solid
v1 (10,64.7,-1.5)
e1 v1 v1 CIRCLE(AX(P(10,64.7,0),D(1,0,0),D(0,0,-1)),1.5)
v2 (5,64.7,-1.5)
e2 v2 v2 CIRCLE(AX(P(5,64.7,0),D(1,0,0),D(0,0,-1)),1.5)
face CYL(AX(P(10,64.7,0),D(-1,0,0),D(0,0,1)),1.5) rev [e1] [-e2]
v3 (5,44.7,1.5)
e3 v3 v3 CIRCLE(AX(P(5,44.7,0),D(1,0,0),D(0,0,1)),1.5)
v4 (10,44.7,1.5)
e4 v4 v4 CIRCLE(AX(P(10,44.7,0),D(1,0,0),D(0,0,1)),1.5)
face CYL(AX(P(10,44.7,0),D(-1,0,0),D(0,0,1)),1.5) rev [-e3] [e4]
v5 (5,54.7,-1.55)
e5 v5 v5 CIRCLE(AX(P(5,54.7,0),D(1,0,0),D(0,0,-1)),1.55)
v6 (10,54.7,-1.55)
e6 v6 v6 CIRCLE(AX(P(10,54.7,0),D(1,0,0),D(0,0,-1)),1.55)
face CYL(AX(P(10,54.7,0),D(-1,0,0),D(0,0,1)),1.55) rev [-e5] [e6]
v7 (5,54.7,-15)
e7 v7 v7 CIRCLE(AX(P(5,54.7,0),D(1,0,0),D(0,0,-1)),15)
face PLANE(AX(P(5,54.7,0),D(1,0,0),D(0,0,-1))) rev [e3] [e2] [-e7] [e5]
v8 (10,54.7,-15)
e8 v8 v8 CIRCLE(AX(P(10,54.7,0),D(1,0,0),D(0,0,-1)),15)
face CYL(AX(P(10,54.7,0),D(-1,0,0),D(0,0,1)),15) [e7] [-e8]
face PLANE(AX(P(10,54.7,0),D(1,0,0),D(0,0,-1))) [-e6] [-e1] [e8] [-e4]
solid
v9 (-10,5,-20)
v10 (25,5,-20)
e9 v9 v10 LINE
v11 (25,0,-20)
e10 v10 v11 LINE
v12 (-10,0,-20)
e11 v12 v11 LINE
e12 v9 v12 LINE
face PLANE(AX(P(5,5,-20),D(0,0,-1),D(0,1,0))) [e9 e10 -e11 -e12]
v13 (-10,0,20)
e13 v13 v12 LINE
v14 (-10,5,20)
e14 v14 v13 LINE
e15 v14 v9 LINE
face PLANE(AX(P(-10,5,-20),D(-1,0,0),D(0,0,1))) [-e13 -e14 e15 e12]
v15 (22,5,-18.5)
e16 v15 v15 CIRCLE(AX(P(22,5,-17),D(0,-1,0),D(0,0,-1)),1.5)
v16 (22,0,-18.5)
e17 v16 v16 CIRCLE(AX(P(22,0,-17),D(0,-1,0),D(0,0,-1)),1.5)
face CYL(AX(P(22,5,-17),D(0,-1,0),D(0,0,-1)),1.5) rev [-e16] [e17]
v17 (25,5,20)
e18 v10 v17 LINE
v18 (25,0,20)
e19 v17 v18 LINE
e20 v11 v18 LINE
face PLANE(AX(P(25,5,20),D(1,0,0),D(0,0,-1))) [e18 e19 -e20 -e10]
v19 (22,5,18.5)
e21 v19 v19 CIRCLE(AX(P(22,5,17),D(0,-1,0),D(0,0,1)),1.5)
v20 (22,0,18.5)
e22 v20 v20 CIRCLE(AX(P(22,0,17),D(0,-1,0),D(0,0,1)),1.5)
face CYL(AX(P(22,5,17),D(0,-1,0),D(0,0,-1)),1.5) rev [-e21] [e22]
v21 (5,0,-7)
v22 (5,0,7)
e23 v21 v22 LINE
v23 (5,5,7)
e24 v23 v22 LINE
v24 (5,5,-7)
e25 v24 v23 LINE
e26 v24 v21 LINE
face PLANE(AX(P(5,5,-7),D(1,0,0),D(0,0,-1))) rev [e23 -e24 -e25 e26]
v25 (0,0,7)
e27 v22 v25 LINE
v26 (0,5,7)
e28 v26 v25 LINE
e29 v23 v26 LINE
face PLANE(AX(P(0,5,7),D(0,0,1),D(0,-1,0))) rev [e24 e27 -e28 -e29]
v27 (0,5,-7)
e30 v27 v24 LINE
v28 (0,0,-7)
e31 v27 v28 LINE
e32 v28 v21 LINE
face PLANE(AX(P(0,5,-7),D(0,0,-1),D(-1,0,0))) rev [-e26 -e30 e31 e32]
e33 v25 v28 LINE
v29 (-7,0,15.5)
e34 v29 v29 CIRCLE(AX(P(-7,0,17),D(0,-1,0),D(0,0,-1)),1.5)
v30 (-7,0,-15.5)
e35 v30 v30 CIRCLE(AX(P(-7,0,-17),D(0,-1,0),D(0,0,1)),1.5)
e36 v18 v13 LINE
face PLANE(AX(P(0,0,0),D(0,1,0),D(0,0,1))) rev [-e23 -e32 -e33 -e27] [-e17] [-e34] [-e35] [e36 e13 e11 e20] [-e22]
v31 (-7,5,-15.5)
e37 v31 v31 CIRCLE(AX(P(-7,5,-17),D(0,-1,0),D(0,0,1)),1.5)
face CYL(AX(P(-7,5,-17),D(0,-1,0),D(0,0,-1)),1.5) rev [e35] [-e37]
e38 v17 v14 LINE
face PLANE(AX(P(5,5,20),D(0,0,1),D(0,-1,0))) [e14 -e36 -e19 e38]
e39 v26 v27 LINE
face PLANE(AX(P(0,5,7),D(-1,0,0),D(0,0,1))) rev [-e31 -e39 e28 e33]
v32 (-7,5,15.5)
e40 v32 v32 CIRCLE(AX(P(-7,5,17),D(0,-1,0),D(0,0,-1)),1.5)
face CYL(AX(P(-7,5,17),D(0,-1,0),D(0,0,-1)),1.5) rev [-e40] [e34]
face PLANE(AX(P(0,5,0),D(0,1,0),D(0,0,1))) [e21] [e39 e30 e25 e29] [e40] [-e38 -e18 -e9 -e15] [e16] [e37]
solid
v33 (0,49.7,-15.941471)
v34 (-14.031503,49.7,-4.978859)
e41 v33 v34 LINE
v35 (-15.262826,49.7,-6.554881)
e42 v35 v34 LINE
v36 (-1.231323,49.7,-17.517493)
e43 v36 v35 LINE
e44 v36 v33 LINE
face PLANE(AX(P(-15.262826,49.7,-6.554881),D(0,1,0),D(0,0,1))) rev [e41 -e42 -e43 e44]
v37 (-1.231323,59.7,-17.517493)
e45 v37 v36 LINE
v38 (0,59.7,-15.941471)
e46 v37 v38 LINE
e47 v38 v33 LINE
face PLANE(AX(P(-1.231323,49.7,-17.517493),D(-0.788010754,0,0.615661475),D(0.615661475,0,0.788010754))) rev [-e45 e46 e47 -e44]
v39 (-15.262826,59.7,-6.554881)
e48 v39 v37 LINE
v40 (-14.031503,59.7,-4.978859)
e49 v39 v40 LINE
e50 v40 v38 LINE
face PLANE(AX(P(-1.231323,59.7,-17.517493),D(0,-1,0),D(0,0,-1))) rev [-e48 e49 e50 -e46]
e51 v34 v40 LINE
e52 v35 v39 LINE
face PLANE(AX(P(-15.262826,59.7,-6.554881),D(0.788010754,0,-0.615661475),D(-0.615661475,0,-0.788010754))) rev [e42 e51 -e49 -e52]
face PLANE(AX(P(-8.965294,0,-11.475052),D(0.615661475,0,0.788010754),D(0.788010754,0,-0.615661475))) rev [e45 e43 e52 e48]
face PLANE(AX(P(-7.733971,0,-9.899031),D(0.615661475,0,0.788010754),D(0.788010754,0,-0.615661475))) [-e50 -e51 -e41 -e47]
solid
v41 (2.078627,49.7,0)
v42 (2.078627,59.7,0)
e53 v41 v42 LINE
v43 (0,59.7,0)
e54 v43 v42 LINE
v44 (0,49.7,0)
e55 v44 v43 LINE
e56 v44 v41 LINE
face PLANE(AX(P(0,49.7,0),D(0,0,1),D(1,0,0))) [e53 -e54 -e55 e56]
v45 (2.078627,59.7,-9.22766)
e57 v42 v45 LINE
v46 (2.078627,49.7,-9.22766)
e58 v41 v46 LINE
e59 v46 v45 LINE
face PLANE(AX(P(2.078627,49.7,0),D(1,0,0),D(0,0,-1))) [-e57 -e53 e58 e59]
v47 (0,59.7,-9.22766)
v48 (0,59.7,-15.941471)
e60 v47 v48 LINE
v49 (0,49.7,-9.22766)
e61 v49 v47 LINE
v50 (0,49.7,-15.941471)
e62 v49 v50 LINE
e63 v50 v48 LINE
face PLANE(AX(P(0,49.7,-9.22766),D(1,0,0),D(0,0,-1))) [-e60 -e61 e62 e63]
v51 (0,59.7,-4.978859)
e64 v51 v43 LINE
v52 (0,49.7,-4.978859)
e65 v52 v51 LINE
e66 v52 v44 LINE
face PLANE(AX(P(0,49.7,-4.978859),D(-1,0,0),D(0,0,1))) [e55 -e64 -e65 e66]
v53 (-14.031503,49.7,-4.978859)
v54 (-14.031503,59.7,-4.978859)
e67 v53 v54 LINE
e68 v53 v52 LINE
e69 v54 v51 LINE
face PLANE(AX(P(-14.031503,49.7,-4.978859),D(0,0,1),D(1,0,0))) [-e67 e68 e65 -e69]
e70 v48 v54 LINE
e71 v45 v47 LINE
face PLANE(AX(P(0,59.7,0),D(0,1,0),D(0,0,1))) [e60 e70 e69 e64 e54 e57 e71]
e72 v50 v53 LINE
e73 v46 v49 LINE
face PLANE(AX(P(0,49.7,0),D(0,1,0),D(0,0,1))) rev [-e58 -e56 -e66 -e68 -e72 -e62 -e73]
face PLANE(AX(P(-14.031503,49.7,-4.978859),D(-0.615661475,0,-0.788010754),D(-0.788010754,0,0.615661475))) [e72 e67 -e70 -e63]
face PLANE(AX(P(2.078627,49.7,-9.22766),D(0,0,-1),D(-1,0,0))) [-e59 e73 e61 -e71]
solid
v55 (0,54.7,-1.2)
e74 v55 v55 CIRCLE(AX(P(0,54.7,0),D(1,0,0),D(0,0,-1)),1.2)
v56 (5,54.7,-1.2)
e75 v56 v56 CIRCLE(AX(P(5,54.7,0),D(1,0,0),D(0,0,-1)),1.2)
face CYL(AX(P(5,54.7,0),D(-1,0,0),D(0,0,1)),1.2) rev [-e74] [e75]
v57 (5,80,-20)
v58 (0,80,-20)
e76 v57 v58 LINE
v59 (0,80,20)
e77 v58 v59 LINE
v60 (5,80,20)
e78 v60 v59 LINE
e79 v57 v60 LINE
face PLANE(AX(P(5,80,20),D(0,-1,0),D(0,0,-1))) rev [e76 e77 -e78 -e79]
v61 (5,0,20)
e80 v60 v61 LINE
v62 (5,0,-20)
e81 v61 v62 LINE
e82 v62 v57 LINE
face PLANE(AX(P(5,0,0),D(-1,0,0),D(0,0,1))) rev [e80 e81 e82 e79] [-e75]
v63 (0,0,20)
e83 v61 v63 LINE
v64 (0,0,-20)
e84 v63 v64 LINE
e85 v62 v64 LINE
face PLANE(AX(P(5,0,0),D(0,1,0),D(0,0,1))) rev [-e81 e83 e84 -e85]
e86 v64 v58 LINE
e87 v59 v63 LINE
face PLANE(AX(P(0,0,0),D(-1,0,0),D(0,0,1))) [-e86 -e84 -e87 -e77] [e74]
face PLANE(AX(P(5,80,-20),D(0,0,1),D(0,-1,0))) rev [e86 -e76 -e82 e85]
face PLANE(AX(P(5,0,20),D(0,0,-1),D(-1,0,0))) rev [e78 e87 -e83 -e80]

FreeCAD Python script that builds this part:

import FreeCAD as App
import Part
import Sketcher

V = App.Vector
Q = App.Units.Quantity


def add_polygon(sketch, points):
    """Adds a closed chain of lines whose ends are joined by coincident constraints."""
    first, n = sketch.GeometryCount, len(points)
    for a, b in zip(points, points[1:] + points[:1]):
        sketch.addGeometry(Part.LineSegment(App.Vector(*a, 0), App.Vector(*b, 0)), False)
    for i in range(n):
        sketch.addConstraint(Sketcher.Constraint("Coincident", first + i, 2, first + (i + 1) % n, 1))

doc = App.newDocument("Part")
body = doc.addObject("PartDesign::Body", "Body")

# Sketch on YZ plane
sketch1 = body.newObject("Sketcher::SketchObject", "Sketch")
sketch1.AttachmentSupport = (doc.getObject("YZ_Plane"), [""])
sketch1.MapMode = "FlatFace"
add_polygon(sketch1, [(0, 20), (0, -20), (80, -20), (80, 20)])  # lines 0-3
sketch1.addGeometry(Part.Circle(V(54.7, 0, 0), V(0, 0, 1), 1.2), False)  # 4
sketch1.addConstraint(Sketcher.Constraint("Vertical", 0))
sketch1.addConstraint(Sketcher.Constraint("Horizontal", 1))
sketch1.addConstraint(Sketcher.Constraint("Vertical", 2))
sketch1.addConstraint(Sketcher.Constraint("Horizontal", 3))
sketch1.addConstraint(Sketcher.Constraint("Symmetric", 0, 2, 3, 2, -1, 1))
sketch1.addConstraint(Sketcher.Constraint("PointOnObject", 4, 3, -1))
sketch1.addConstraint(Sketcher.Constraint("Diameter", 4, Q("2.4 mm")))
sketch1.addConstraint(Sketcher.Constraint("DistanceX", 1, 1, 1, 2, Q("80 mm")))
sketch1.addConstraint(Sketcher.Constraint("DistanceY", 0, 2, 0, 1, Q("40 mm")))
sketch1.addConstraint(Sketcher.Constraint("DistanceX", -1, 1, 4, 3, Q("54.7 mm")))
pad1 = body.newObject("PartDesign::Pad", "Pad")
pad1.Profile = sketch1
pad1.Length = 5
body2 = doc.addObject("PartDesign::Body", "Body001")

# Sketch on XZ plane
sketch2 = body2.newObject("Sketcher::SketchObject", "Sketch001")
sketch2.AttachmentSupport = (doc.getObject("XZ_Plane001"), [""])
sketch2.MapMode = "FlatFace"
add_polygon(sketch2, [(25, 20), (-10, 20), (-10, -20), (25, -20)])  # lines 0-3
sketch2.addGeometry(Part.Circle(V(22, -17, 0), V(0, 0, 1), 1.5), False)  # 4
sketch2.addGeometry(Part.Circle(V(-7, -17, 0), V(0, 0, 1), 1.5), False)  # 5
sketch2.addGeometry(Part.Circle(V(22, 17, 0), V(0, 0, 1), 1.5), False)  # 6
add_polygon(sketch2, [(0, -7), (0, 7), (5, 7), (5, -7)])  # lines 7-10
sketch2.addGeometry(Part.Circle(V(-7, 17, 0), V(0, 0, 1), 1.5), False)  # 11
sketch2.addConstraint(Sketcher.Constraint("Horizontal", 0))
sketch2.addConstraint(Sketcher.Constraint("Vertical", 1))
sketch2.addConstraint(Sketcher.Constraint("Horizontal", 2))
sketch2.addConstraint(Sketcher.Constraint("Vertical", 3))
sketch2.addConstraint(Sketcher.Constraint("Vertical", 7))
sketch2.addConstraint(Sketcher.Constraint("Horizontal", 8))
sketch2.addConstraint(Sketcher.Constraint("Vertical", 9))
sketch2.addConstraint(Sketcher.Constraint("Horizontal", 10))
sketch2.addConstraint(Sketcher.Constraint("Equal", 4, 5))
sketch2.addConstraint(Sketcher.Constraint("Equal", 5, 6))
sketch2.addConstraint(Sketcher.Constraint("Equal", 6, 11))
sketch2.addConstraint(Sketcher.Constraint("Symmetric", 7, 2, 10, 2, -1, 1))
sketch2.addConstraint(Sketcher.Constraint("Symmetric", 4, 3, 6, 3, -1))
sketch2.addConstraint(Sketcher.Constraint("Symmetric", 5, 3, 11, 3, -1))
sketch2.addConstraint(Sketcher.Constraint("Horizontal", 4, 3, 5, 3))
sketch2.addConstraint(Sketcher.Constraint("Diameter", 4, Q("3 mm")))
sketch2.addConstraint(Sketcher.Constraint("DistanceX", 0, 2, 0, 1, Q("35 mm")))
sketch2.addConstraint(Sketcher.Constraint("DistanceX", 8, 1, 8, 2, Q("5 mm")))
sketch2.addConstraint(Sketcher.Constraint("DistanceY", 1, 2, 1, 1, Q("40 mm")))
sketch2.addConstraint(Sketcher.Constraint("DistanceY", 7, 1, 7, 2, Q("14 mm")))
sketch2.addConstraint(Sketcher.Constraint("DistanceX", -1, 1, 4, 3, Q("22 mm")))
sketch2.addConstraint(Sketcher.Constraint("DistanceY", 4, 3, -1, 1, Q("17 mm")))
sketch2.addConstraint(Sketcher.Constraint("DistanceX", 5, 3, -1, 1, Q("7 mm")))
sketch2.addConstraint(Sketcher.Constraint("DistanceX", 0, 2, -1, 1, Q("10 mm")))
sketch2.addConstraint(Sketcher.Constraint("DistanceY", -1, 1, 0, 2, Q("20 mm")))
pad2 = body2.newObject("PartDesign::Pad", "Pad001")
pad2.Profile = sketch2
pad2.Length = 5
pad2.Reversed = True
body3 = doc.addObject("PartDesign::Body", "Body002")

# Sketch on XZ plane
sketch3 = body3.newObject("Sketcher::SketchObject", "Sketch002")
sketch3.AttachmentSupport = (doc.getObject("XZ_Plane002"), [""])
sketch3.MapMode = "FlatFace"
sketch3.AttachmentOffset = App.Placement(V(0, 0, -54.7), App.Rotation())
add_polygon(sketch3, [(-14, -5), (0, -5), (0, 0), (2.1, 0), (2.1, -9.2), (0, -9.2), (0, -15.9)])  # lines 0-6
sketch3.addConstraint(Sketcher.Constraint("Horizontal", 0))
sketch3.addConstraint(Sketcher.Constraint("Vertical", 1))
sketch3.addConstraint(Sketcher.Constraint("Horizontal", 2))
sketch3.addConstraint(Sketcher.Constraint("Vertical", 3))
sketch3.addConstraint(Sketcher.Constraint("Horizontal", 4))
sketch3.addConstraint(Sketcher.Constraint("Vertical", 5))
sketch3.addConstraint(Sketcher.Constraint("Coincident", 1, 2, -1, 1))
sketch3.addConstraint(Sketcher.Constraint("PointOnObject", 4, 2, -2))
sketch3.addConstraint(Sketcher.Constraint("Angle", 6, Q("142 deg")))
sketch3.addConstraint(Sketcher.Constraint("DistanceY", 1, 1, 1, 2, Q("4.978859 mm")))
sketch3.addConstraint(Sketcher.Constraint("DistanceY", 3, 2, 3, 1, Q("9.22766 mm")))
sketch3.addConstraint(Sketcher.Constraint("DistanceY", 5, 2, 5, 1, Q("6.713811 mm")))
sketch3.addConstraint(Sketcher.Constraint("DistanceX", 2, 1, 2, 2, Q("2.078627 mm")))
pad3 = body3.newObject("PartDesign::Pad", "Pad002")
pad3.Profile = sketch3
pad3.Type = "TwoLengths"
pad3.Length = 5
pad3.Length2 = 5
pad3.Reversed = True
body4 = doc.addObject("PartDesign::Body", "Body003")

# Sketch on YZ plane
sketch4 = body4.newObject("Sketcher::SketchObject", "Sketch003")
sketch4.AttachmentSupport = (doc.getObject("YZ_Plane003"), [""])
sketch4.MapMode = "FlatFace"
sketch4.AttachmentOffset = App.Placement(V(0, 0, 5), App.Rotation())
sketch4.addGeometry(Part.Circle(V(54.7, 0, 0), V(0, 0, 1), 15), False)
sketch4.addGeometry(Part.Circle(V(44.7, 0, 0), V(0, 0, 1), 1.5), False)
sketch4.addGeometry(Part.Circle(V(54.7, 0, 0), V(0, 0, 1), 1.6), False)
sketch4.addGeometry(Part.Circle(V(64.7, 0, 0), V(0, 0, 1), 1.5), False)
sketch4.addConstraint(Sketcher.Constraint("Coincident", 2, 3, 0, 3))
sketch4.addConstraint(Sketcher.Constraint("Equal", 1, 3))
sketch4.addConstraint(Sketcher.Constraint("PointOnObject", 0, 3, -1))
sketch4.addConstraint(Sketcher.Constraint("PointOnObject", 1, 3, -1))
sketch4.addConstraint(Sketcher.Constraint("PointOnObject", 3, 3, -1))
sketch4.addConstraint(Sketcher.Constraint("Diameter", 0, Q("30 mm")))
sketch4.addConstraint(Sketcher.Constraint("Diameter", 1, Q("3 mm")))
sketch4.addConstraint(Sketcher.Constraint("Diameter", 2, Q("3.1 mm")))
sketch4.addConstraint(Sketcher.Constraint("DistanceX", 1, 3, 0, 3, Q("10 mm")))
sketch4.addConstraint(Sketcher.Constraint("DistanceX", 0, 3, 3, 3, Q("10 mm")))
sketch4.addConstraint(Sketcher.Constraint("DistanceX", -1, 1, 0, 3, Q("54.7 mm")))
pad4 = body4.newObject("PartDesign::Pad", "Pad003")
pad4.Profile = sketch4
pad4.Length = 5
body5 = doc.addObject("PartDesign::Body", "Body004")

# Sketch on an angled plane
sketch5 = body5.newObject("Sketcher::SketchObject", "Sketch004")
sketch5.Placement = App.Placement(V(-7.733971, 0, -9.899031), App.Rotation(V(-0.788010754, 0, 0.615661475), V(0, 1, 0), V(-0.615661475, 0, -0.788010754), "ZXY"))
add_polygon(sketch5, [(-10, 60), (-10, 50), (8, 50), (8, 60)])  # lines 0-3
sketch5.addConstraint(Sketcher.Constraint("Vertical", 0))
sketch5.addConstraint(Sketcher.Constraint("Horizontal", 1))
sketch5.addConstraint(Sketcher.Constraint("Vertical", 2))
sketch5.addConstraint(Sketcher.Constraint("Horizontal", 3))
sketch5.addConstraint(Sketcher.Constraint("DistanceY", 0, 2, 0, 1, Q("10 mm")))
sketch5.addConstraint(Sketcher.Constraint("DistanceY", -1, 1, 0, 2, Q("49.7 mm")))
sketch5.addConstraint(Sketcher.Constraint("DistanceX", 1, 1, 1, 2, Q("17.806233 mm")))
sketch5.addConstraint(Sketcher.Constraint("DistanceX", 0, 2, -1, 1, Q("9.81455 mm")))
pad5 = body5.newObject("PartDesign::Pad", "Pad004")
pad5.Profile = sketch5
pad5.Length = 2

doc.recompute()
